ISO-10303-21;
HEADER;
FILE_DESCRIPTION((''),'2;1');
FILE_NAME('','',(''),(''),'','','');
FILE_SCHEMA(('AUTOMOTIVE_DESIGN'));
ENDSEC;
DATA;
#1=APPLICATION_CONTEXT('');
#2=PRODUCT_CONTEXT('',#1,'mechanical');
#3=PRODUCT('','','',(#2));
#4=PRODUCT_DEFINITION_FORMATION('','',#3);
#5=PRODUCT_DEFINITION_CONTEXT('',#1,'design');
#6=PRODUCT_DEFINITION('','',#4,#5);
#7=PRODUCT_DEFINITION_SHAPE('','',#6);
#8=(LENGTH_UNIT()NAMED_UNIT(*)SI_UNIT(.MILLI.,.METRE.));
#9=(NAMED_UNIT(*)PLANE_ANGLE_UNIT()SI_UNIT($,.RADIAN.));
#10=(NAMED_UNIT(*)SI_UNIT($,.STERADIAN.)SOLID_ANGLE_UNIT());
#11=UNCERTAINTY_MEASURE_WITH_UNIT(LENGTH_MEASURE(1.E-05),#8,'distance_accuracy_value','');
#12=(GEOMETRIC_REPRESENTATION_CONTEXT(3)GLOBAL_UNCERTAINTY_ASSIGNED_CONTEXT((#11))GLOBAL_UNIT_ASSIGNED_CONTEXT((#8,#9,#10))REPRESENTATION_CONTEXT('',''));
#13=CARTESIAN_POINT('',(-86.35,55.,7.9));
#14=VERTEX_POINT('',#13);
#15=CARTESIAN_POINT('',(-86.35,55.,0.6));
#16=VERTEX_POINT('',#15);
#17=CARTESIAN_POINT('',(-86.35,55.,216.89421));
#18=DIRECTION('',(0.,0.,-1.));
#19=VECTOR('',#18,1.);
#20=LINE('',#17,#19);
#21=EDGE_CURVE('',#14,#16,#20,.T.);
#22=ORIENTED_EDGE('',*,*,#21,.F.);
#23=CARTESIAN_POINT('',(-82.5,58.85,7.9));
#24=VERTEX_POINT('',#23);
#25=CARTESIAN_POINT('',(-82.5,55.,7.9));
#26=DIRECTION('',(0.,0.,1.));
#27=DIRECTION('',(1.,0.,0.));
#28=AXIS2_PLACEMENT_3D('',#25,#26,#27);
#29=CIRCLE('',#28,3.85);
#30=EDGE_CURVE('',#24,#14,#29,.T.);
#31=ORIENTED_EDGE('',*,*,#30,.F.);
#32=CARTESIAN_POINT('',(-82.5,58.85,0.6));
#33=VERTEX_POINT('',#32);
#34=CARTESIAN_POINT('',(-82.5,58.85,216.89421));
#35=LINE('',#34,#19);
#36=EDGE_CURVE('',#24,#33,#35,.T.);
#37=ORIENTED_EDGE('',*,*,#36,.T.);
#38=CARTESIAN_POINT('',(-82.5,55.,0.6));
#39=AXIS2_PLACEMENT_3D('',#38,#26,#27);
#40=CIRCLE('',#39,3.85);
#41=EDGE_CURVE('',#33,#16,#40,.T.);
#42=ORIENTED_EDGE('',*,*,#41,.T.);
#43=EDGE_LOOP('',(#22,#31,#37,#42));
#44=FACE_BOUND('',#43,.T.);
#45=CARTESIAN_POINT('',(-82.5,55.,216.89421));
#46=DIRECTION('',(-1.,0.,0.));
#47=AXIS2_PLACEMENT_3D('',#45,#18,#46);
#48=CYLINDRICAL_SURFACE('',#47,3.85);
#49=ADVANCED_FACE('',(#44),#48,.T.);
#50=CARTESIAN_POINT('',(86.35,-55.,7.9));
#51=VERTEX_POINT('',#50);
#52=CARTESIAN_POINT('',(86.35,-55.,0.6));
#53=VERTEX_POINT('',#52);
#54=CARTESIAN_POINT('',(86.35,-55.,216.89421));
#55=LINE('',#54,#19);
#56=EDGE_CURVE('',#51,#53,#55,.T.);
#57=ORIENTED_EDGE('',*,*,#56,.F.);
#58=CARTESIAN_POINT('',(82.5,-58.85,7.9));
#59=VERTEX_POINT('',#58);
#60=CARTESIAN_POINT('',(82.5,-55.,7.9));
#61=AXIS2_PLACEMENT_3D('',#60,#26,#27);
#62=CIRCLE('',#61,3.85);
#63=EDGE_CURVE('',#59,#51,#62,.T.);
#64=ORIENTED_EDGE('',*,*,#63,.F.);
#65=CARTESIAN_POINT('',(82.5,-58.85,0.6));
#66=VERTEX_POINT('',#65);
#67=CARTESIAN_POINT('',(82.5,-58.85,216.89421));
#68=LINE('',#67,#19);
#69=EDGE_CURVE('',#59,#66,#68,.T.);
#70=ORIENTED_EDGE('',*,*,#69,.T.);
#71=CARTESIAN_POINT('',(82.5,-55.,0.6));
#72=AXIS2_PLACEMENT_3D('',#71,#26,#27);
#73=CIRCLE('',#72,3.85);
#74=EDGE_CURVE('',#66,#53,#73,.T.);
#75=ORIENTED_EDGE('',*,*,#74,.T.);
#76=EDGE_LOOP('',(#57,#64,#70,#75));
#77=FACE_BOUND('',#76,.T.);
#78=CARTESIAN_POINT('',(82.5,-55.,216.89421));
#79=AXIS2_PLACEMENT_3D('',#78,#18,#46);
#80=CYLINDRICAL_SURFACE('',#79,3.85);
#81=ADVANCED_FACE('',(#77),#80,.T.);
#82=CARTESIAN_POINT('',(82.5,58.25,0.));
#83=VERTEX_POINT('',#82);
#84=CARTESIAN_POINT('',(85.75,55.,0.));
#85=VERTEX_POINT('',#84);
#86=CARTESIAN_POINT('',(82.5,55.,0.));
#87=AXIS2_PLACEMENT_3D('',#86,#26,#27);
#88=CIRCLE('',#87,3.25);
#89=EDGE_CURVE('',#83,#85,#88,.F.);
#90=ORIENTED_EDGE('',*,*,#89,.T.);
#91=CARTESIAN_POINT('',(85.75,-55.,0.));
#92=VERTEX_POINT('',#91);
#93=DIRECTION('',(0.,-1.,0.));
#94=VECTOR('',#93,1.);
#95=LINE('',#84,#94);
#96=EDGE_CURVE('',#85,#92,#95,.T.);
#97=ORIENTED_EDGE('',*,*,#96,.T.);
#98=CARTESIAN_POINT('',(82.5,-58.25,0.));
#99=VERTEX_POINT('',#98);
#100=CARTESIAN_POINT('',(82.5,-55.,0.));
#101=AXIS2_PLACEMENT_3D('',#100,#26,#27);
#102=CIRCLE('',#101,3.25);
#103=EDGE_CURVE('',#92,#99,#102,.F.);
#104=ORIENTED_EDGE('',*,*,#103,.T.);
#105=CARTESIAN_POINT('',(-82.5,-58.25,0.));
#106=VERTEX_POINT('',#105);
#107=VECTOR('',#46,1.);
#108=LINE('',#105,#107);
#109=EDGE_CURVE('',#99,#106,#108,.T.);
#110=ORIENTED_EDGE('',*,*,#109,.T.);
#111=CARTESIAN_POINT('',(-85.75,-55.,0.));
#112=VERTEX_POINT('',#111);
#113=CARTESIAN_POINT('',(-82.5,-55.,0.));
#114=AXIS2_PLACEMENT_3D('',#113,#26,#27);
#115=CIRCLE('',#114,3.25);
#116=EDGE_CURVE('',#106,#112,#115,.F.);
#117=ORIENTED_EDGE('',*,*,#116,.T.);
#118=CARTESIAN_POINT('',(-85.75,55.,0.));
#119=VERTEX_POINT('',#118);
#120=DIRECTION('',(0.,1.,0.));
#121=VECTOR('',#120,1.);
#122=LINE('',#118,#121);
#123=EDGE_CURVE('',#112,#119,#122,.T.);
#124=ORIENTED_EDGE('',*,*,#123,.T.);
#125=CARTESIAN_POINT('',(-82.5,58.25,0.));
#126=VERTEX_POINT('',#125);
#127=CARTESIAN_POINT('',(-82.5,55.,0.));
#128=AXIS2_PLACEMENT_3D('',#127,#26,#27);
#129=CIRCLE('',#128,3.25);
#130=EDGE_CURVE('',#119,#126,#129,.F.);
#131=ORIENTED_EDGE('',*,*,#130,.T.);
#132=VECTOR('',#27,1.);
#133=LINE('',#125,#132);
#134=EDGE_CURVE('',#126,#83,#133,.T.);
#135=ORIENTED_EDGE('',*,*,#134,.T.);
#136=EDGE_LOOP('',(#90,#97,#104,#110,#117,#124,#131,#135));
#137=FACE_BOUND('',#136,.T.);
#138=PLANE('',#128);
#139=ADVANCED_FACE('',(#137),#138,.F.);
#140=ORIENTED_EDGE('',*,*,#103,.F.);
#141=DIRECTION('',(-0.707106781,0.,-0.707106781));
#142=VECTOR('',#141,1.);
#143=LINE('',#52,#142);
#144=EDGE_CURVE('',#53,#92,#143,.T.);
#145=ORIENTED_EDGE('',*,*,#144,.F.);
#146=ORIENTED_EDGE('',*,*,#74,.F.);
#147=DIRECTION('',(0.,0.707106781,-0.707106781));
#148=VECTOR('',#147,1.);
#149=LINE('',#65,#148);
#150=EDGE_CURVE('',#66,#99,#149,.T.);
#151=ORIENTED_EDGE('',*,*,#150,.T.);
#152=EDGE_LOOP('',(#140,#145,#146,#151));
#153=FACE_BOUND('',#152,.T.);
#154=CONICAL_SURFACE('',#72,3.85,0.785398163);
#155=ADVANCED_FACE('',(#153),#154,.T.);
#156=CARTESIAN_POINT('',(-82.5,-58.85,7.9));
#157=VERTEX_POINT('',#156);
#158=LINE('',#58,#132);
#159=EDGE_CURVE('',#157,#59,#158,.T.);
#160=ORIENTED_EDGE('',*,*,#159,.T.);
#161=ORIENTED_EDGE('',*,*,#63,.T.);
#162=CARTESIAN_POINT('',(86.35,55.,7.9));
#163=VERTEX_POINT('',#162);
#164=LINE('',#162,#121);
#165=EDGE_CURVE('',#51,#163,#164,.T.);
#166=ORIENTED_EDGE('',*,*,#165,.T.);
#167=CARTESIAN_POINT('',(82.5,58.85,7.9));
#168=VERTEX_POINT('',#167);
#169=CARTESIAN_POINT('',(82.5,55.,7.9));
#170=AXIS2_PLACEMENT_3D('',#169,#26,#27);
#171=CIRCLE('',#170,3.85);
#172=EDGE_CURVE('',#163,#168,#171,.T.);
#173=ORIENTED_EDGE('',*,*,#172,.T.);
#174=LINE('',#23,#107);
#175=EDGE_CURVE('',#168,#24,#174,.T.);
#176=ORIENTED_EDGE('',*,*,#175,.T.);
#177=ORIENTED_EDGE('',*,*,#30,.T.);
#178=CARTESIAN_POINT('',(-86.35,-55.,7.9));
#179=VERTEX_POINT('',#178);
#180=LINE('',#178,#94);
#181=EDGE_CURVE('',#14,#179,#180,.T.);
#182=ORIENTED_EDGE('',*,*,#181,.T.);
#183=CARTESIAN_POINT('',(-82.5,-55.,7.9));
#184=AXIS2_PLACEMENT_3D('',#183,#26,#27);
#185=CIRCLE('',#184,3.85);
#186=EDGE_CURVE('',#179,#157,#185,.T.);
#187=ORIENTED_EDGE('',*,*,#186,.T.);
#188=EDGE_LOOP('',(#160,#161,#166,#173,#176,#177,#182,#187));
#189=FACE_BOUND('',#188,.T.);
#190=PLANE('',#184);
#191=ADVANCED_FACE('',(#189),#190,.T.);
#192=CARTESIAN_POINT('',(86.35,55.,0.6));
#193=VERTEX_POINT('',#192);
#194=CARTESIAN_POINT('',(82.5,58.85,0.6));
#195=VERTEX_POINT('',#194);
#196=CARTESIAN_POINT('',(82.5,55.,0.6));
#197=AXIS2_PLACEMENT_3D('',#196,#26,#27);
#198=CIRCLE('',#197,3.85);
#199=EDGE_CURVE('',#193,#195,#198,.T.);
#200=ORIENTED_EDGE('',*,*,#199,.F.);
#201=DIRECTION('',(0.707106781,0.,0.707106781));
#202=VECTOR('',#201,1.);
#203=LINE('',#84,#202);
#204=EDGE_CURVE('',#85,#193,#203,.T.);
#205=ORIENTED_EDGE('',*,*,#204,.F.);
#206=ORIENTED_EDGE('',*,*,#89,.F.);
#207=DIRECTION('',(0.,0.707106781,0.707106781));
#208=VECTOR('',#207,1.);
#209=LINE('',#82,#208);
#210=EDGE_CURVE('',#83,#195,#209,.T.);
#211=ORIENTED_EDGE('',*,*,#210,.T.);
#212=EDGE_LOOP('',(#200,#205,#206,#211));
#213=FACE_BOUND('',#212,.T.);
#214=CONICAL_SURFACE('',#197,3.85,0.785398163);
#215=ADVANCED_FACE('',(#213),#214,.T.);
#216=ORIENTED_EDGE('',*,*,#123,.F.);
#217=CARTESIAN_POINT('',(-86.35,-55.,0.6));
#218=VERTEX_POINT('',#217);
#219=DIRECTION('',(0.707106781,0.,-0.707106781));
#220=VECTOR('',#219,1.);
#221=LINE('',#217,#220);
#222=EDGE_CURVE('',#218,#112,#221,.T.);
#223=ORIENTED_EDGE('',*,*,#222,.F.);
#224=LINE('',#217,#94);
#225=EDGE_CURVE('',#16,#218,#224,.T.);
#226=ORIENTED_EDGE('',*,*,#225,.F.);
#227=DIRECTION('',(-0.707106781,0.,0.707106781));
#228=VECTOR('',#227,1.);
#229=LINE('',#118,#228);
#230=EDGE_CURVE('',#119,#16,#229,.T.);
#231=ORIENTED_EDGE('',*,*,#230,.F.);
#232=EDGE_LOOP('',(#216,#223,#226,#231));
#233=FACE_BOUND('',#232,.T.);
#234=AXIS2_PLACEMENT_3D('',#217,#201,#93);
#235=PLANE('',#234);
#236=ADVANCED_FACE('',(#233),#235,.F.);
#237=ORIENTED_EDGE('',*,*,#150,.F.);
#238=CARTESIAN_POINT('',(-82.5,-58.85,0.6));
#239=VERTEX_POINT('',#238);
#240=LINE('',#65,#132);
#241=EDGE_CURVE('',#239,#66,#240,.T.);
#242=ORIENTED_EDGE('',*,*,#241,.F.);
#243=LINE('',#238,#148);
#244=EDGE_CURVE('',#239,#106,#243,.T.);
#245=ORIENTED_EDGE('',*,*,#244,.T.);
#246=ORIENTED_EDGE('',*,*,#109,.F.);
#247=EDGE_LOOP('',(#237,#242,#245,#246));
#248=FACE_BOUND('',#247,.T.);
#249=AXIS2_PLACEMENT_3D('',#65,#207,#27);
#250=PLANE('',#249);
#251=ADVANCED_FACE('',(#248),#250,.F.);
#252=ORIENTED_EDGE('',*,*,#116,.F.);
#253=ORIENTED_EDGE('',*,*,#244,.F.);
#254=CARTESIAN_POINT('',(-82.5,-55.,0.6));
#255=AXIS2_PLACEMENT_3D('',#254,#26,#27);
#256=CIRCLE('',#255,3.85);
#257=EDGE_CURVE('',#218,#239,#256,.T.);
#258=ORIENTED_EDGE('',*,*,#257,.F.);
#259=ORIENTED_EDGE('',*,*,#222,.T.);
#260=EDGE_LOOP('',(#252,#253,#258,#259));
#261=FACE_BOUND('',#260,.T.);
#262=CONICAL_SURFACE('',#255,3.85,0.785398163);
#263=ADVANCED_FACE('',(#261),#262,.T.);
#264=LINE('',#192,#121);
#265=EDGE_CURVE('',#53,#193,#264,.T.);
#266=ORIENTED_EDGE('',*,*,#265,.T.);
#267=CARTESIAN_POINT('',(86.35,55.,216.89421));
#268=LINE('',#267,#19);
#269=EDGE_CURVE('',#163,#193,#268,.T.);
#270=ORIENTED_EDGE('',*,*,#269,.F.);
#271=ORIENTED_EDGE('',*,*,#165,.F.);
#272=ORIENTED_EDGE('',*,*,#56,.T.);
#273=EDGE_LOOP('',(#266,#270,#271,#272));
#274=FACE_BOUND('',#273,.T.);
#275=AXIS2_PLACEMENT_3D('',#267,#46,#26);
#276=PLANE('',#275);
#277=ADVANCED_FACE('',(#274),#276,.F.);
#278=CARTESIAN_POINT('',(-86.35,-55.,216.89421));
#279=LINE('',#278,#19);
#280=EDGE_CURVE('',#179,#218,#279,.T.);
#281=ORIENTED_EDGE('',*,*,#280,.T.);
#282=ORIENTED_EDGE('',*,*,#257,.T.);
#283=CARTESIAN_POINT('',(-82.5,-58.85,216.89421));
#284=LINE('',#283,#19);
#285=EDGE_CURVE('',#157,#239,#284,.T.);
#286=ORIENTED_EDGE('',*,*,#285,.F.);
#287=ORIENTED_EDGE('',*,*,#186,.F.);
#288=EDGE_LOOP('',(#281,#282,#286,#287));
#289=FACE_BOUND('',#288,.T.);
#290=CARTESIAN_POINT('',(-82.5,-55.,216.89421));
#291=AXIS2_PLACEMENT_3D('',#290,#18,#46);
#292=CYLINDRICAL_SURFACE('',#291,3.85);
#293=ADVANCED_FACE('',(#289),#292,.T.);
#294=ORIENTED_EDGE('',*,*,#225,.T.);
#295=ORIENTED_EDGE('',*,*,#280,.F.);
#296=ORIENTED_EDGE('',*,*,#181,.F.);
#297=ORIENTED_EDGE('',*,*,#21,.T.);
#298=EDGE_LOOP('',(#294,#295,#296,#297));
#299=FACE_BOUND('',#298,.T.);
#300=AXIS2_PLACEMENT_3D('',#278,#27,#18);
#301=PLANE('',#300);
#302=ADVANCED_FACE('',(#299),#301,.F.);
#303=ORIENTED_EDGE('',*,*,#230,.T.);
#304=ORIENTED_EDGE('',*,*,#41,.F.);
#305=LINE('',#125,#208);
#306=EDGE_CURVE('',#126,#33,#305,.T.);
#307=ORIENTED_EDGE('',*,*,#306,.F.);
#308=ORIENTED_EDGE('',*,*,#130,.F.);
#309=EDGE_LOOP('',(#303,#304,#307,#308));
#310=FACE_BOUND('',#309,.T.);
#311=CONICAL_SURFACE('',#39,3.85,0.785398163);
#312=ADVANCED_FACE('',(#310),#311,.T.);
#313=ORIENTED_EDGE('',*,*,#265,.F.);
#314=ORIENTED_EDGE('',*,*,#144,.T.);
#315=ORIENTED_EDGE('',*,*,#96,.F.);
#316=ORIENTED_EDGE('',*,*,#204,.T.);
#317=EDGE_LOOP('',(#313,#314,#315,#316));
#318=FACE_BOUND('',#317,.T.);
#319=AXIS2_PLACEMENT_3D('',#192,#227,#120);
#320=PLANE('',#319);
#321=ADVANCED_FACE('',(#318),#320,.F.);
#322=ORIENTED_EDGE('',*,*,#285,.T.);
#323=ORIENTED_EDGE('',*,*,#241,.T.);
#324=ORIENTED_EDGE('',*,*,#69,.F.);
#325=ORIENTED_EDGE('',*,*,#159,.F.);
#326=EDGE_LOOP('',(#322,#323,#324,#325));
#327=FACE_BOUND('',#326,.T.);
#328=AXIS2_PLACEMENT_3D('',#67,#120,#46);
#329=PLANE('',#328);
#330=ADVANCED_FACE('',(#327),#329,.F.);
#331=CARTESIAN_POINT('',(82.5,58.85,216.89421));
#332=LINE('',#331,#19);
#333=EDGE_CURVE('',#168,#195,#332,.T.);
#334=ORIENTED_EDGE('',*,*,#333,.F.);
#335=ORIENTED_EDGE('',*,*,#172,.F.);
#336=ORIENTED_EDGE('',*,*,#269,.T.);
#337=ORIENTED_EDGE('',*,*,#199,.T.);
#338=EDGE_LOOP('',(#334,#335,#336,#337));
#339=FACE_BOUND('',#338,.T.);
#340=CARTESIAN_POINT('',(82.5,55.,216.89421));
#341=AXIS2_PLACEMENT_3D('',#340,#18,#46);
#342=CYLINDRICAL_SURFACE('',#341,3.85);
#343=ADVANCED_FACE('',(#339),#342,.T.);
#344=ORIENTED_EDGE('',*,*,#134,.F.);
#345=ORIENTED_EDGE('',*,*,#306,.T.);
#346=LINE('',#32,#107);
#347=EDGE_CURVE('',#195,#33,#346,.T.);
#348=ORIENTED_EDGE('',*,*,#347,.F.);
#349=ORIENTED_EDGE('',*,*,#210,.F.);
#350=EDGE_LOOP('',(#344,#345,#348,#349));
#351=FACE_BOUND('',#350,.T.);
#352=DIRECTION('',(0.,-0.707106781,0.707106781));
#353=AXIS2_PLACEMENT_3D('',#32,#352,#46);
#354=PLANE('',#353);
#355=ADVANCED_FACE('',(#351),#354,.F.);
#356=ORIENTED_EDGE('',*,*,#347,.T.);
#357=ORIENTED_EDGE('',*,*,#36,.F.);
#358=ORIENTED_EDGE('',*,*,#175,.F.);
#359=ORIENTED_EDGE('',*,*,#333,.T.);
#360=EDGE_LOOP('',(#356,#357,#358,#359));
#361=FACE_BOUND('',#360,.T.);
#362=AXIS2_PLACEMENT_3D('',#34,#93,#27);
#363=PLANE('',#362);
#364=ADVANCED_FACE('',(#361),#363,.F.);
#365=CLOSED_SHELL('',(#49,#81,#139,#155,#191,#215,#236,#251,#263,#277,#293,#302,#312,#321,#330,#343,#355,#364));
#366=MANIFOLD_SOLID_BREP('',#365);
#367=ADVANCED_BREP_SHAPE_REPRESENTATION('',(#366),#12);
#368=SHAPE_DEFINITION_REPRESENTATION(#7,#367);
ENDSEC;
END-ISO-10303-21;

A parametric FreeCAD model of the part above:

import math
import FreeCAD as App
import Part
import Sketcher

V = App.Vector
Q = App.Units.Quantity


def edges_at(feature, points):
    """Names of the edges that pass closest to the given points."""
    edges = feature.Shape.Edges
    near = lambda p: min(range(len(edges)), key=lambda i: edges[i].distToShape(Part.Vertex(*p))[0])
    return sorted({f"Edge{near(p) + 1}" for p in points})

doc = App.newDocument("Part")
params = doc.addObject("Spreadsheet::Sheet", "Params")
for row, (alias, value) in enumerate([
    ("sketch1_width", "165 mm"),
    ("sketch1_height", "110 mm"),
    ("sketch1_radius", "3.85 mm"),
    ("pad1_length", "7.9 mm"),
    ("chamfer_size", "0.6 mm"),
], start=1):
    params.set(f"A{row}", alias)
    params.set(f"B{row}", "=" + value)
    params.setAlias(f"B{row}", alias)

body = doc.addObject("PartDesign::Body", "Body")

sketch1 = body.newObject("Sketcher::SketchObject", "Sketch")
sketch1.AttachmentSupport = (doc.getObject("XY_Plane"), [""])
sketch1.MapMode = "FlatFace"
sketch1.addGeometry(Part.LineSegment(V(82.5, 58.9, 0), V(-82.5, 58.9, 0)), False)
sketch1.addGeometry(Part.ArcOfCircle(Part.Circle(V(-82.5, 55, 0), V(0, 0, 1), 3.8), math.radians(90), math.radians(180)), False)
sketch1.addGeometry(Part.LineSegment(V(-86.3, 55, 0), V(-86.3, -55, 0)), False)
sketch1.addGeometry(Part.ArcOfCircle(Part.Circle(V(-82.5, -55, 0), V(0, 0, 1), 3.8), math.radians(180), math.radians(270)), False)
sketch1.addGeometry(Part.LineSegment(V(-82.5, -58.9, 0), V(82.5, -58.9, 0)), False)
sketch1.addGeometry(Part.ArcOfCircle(Part.Circle(V(82.5, -55, 0), V(0, 0, 1), 3.8), math.radians(-90), math.radians(0)), False)
sketch1.addGeometry(Part.LineSegment(V(86.3, -55, 0), V(86.3, 55, 0)), False)
sketch1.addGeometry(Part.ArcOfCircle(Part.Circle(V(82.5, 55, 0), V(0, 0, 1), 3.8), math.radians(0), math.radians(90)), False)
sketch1.addConstraint(Sketcher.Constraint("Tangent", 0, 2, 1, 1))
sketch1.addConstraint(Sketcher.Constraint("Tangent", 1, 2, 2, 1))
sketch1.addConstraint(Sketcher.Constraint("Tangent", 2, 2, 3, 1))
sketch1.addConstraint(Sketcher.Constraint("Tangent", 3, 2, 4, 1))
sketch1.addConstraint(Sketcher.Constraint("Tangent", 4, 2, 5, 1))
sketch1.addConstraint(Sketcher.Constraint("Tangent", 5, 2, 6, 1))
sketch1.addConstraint(Sketcher.Constraint("Tangent", 6, 2, 7, 1))
sketch1.addConstraint(Sketcher.Constraint("Tangent", 7, 2, 0, 1))
sketch1.addConstraint(Sketcher.Constraint("Horizontal", 0))
sketch1.addConstraint(Sketcher.Constraint("Vertical", 2))
sketch1.addConstraint(Sketcher.Constraint("Horizontal", 4))
sketch1.addConstraint(Sketcher.Constraint("Vertical", 6))
sketch1.addConstraint(Sketcher.Constraint("Equal", 1, 3))
sketch1.addConstraint(Sketcher.Constraint("Equal", 3, 5))
sketch1.addConstraint(Sketcher.Constraint("Equal", 5, 7))
sketch1.addConstraint(Sketcher.Constraint("Symmetric", 1, 3, 5, 3, -1, 1))
sketch1.addConstraint(Sketcher.Constraint("DistanceX", 0, 2, 0, 1, Q("165 mm")))
sketch1.addConstraint(Sketcher.Constraint("DistanceY", 2, 2, 2, 1, Q("110 mm")))
sketch1.addConstraint(Sketcher.Constraint("Radius", 1, Q("3.85 mm")))
sketch1.setExpression("Constraints[16]", "Params.sketch1_width")
sketch1.setExpression("Constraints[17]", "Params.sketch1_height")
sketch1.setExpression("Constraints[18]", "Params.sketch1_radius")
pad1 = body.newObject("PartDesign::Pad", "Pad")
pad1.Profile = sketch1
pad1.setExpression("Length", "Params.pad1_length")
doc.recompute()

chamfer = body.newObject("PartDesign::Chamfer", "Chamfer")
chamfer.Base = (pad1, edges_at(pad1, [
    (-86.35, 0, 0),
    (-85.222, -57.722, 0),
    (0, -58.85, 0),
    (85.222, -57.722, 0),
    (86.35, 0, 0),
    (85.222, 57.722, 0),
    (0, 58.85, 0),
    (-85.222, 57.722, 0),
]))
chamfer.setExpression("Size", "Params.chamfer_size")

doc.recompute()
